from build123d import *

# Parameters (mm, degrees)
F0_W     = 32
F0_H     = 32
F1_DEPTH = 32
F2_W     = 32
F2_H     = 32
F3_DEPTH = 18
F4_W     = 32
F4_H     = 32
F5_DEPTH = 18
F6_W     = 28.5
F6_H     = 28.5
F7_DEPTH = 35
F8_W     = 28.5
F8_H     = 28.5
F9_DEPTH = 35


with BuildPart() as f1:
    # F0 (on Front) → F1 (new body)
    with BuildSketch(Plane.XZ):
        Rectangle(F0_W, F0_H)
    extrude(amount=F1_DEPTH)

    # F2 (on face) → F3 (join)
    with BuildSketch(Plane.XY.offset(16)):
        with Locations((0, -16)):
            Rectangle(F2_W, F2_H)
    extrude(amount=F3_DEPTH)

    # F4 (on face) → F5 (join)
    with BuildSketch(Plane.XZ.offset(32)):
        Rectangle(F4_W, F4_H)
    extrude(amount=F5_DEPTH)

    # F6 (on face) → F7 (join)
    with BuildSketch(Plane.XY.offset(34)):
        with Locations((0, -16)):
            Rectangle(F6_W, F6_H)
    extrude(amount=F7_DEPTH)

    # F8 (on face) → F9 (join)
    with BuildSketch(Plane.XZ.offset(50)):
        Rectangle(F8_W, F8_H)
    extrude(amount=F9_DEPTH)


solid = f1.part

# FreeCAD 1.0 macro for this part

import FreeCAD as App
import Part
import Sketcher

doc = App.newDocument("Part")
body = doc.addObject("PartDesign::Body", "Body")

# Sketch on XZ plane
sketch1 = doc.addObject("Sketcher::SketchObject", "Sketch")
body.addObject(sketch1)
sketch1.AttachmentSupport = (doc.XZ_Plane, [""])
sketch1.MapMode = "FlatFace"
sketch1.addGeometry(Part.LineSegment(App.Vector(-16, 16, 0), App.Vector(-16, -16, 0)), False)
sketch1.addGeometry(Part.LineSegment(App.Vector(-16, -16, 0), App.Vector(16, -16, 0)), False)
sketch1.addGeometry(Part.LineSegment(App.Vector(16, -16, 0), App.Vector(16, 16, 0)), False)
sketch1.addGeometry(Part.LineSegment(App.Vector(16, 16, 0), App.Vector(-16, 16, 0)), False)
sketch1.addConstraint(Sketcher.Constraint("Coincident", 0, 2, 1, 1))
sketch1.addConstraint(Sketcher.Constraint("Coincident", 1, 2, 2, 1))
sketch1.addConstraint(Sketcher.Constraint("Coincident", 2, 2, 3, 1))
sketch1.addConstraint(Sketcher.Constraint("Coincident", 3, 2, 0, 1))
sketch1.addConstraint(Sketcher.Constraint("Vertical", 0))
sketch1.addConstraint(Sketcher.Constraint("Horizontal", 1))
sketch1.addConstraint(Sketcher.Constraint("Vertical", 2))
sketch1.addConstraint(Sketcher.Constraint("Horizontal", 3))
sketch1.addConstraint(Sketcher.Constraint("Symmetric", 0, 2, 2, 2, -1, 1))
sketch1.addConstraint(Sketcher.Constraint("Equal", 3, 0))
sketch1.addConstraint(Sketcher.Constraint("DistanceX", 1, 1, 1, 2, 32.0))
pad1 = doc.addObject("PartDesign::Pad", "Pad")
body.addObject(pad1)
pad1.Profile = sketch1
pad1.Length = 32

# Sketch on XY plane
sketch2 = doc.addObject("Sketcher::SketchObject", "Sketch001")
body.addObject(sketch2)
sketch2.AttachmentSupport = (doc.XY_Plane, [""])
sketch2.MapMode = "FlatFace"
sketch2.AttachmentOffset = App.Placement(App.Vector(0, 0, 16), App.Rotation())
sketch2.addGeometry(Part.LineSegment(App.Vector(-16, 0, 0), App.Vector(-16, -32, 0)), False)
sketch2.addGeometry(Part.LineSegment(App.Vector(-16, -32, 0), App.Vector(16, -32, 0)), False)
sketch2.addGeometry(Part.LineSegment(App.Vector(16, -32, 0), App.Vector(16, 0, 0)), False)
sketch2.addGeometry(Part.LineSegment(App.Vector(16, 0, 0), App.Vector(-16, 0, 0)), False)
sketch2.addConstraint(Sketcher.Constraint("Coincident", 0, 2, 1, 1))
sketch2.addConstraint(Sketcher.Constraint("Coincident", 1, 2, 2, 1))
sketch2.addConstraint(Sketcher.Constraint("Coincident", 2, 2, 3, 1))
sketch2.addConstraint(Sketcher.Constraint("Coincident", 3, 2, 0, 1))
sketch2.addConstraint(Sketcher.Constraint("Vertical", 0))
sketch2.addConstraint(Sketcher.Constraint("Horizontal", 1))
sketch2.addConstraint(Sketcher.Constraint("Vertical", 2))
sketch2.addConstraint(Sketcher.Constraint("Horizontal", 3))
sketch2.addConstraint(Sketcher.Constraint("Symmetric", 2, 2, 3, 2, -1, 1))
sketch2.addConstraint(Sketcher.Constraint("Equal", 3, 0))
sketch2.addConstraint(Sketcher.Constraint("DistanceX", 1, 1, 1, 2, 32.0))
pad2 = doc.addObject("PartDesign::Pad", "Pad001")
body.addObject(pad2)
pad2.Profile = sketch2
pad2.Length = 18

# Sketch on XZ plane
sketch3 = doc.addObject("Sketcher::SketchObject", "Sketch002")
body.addObject(sketch3)
sketch3.AttachmentSupport = (doc.XZ_Plane, [""])
sketch3.MapMode = "FlatFace"
sketch3.AttachmentOffset = App.Placement(App.Vector(0, 0, 32), App.Rotation())
sketch3.addGeometry(Part.LineSegment(App.Vector(-16, 16, 0), App.Vector(-16, -16, 0)), False)
sketch3.addGeometry(Part.LineSegment(App.Vector(-16, -16, 0), App.Vector(16, -16, 0)), False)
sketch3.addGeometry(Part.LineSegment(App.Vector(16, -16, 0), App.Vector(16, 16, 0)), False)
sketch3.addGeometry(Part.LineSegment(App.Vector(16, 16, 0), App.Vector(-16, 16, 0)), False)
sketch3.addConstraint(Sketcher.Constraint("Coincident", 0, 2, 1, 1))
sketch3.addConstraint(Sketcher.Constraint("Coincident", 1, 2, 2, 1))
sketch3.addConstraint(Sketcher.Constraint("Coincident", 2, 2, 3, 1))
sketch3.addConstraint(Sketcher.Constraint("Coincident", 3, 2, 0, 1))
sketch3.addConstraint(Sketcher.Constraint("Vertical", 0))
sketch3.addConstraint(Sketcher.Constraint("Horizontal", 1))
sketch3.addConstraint(Sketcher.Constraint("Vertical", 2))
sketch3.addConstraint(Sketcher.Constraint("Horizontal", 3))
sketch3.addConstraint(Sketcher.Constraint("Symmetric", 0, 2, 2, 2, -1, 1))
sketch3.addConstraint(Sketcher.Constraint("Equal", 3, 0))
sketch3.addConstraint(Sketcher.Constraint("DistanceX", 1, 1, 1, 2, 32.0))
pad3 = doc.addObject("PartDesign::Pad", "Pad002")
body.addObject(pad3)
pad3.Profile = sketch3
pad3.Length = 18

# Sketch on XY plane
sketch4 = doc.addObject("Sketcher::SketchObject", "Sketch003")
body.addObject(sketch4)
sketch4.AttachmentSupport = (doc.XY_Plane, [""])
sketch4.MapMode = "FlatFace"
sketch4.AttachmentOffset = App.Placement(App.Vector(0, 0, 34), App.Rotation())
sketch4.addGeometry(Part.LineSegment(App.Vector(-14.25, -1.75, 0), App.Vector(-14.25, -30.25, 0)), False)
sketch4.addGeometry(Part.LineSegment(App.Vector(-14.25, -30.25, 0), App.Vector(14.25, -30.25, 0)), False)
sketch4.addGeometry(Part.LineSegment(App.Vector(14.25, -30.25, 0), App.Vector(14.25, -1.75, 0)), False)
sketch4.addGeometry(Part.LineSegment(App.Vector(14.25, -1.75, 0), App.Vector(-14.25, -1.75, 0)), False)
sketch4.addConstraint(Sketcher.Constraint("Coincident", 0, 2, 1, 1))
sketch4.addConstraint(Sketcher.Constraint("Coincident", 1, 2, 2, 1))
sketch4.addConstraint(Sketcher.Constraint("Coincident", 2, 2, 3, 1))
sketch4.addConstraint(Sketcher.Constraint("Coincident", 3, 2, 0, 1))
sketch4.addConstraint(Sketcher.Constraint("Vertical", 0))
sketch4.addConstraint(Sketcher.Constraint("Horizontal", 1))
sketch4.addConstraint(Sketcher.Constraint("Vertical", 2))
sketch4.addConstraint(Sketcher.Constraint("Horizontal", 3))
sketch4.addConstraint(Sketcher.Constraint("Equal", 3, 0))
sketch4.addConstraint(Sketcher.Constraint("DistanceX", 1, 1, 1, 2, 28.5))
sketch4.addConstraint(Sketcher.Constraint("DistanceX", 0, 2, -1, 1, 14.25))
sketch4.addConstraint(Sketcher.Constraint("DistanceY", 0, 2, -1, 1, 30.25))
pad4 = doc.addObject("PartDesign::Pad", "Pad003")
body.addObject(pad4)
pad4.Profile = sketch4
pad4.Length = 35

# Sketch on XZ plane
sketch5 = doc.addObject("Sketcher::SketchObject", "Sketch004")
body.addObject(sketch5)
sketch5.AttachmentSupport = (doc.XZ_Plane, [""])
sketch5.MapMode = "FlatFace"
sketch5.AttachmentOffset = App.Placement(App.Vector(0, 0, 50), App.Rotation())
sketch5.addGeometry(Part.LineSegment(App.Vector(-14.25, 14.25, 0), App.Vector(-14.25, -14.25, 0)), False)
sketch5.addGeometry(Part.LineSegment(App.Vector(-14.25, -14.25, 0), App.Vector(14.25, -14.25, 0)), False)
sketch5.addGeometry(Part.LineSegment(App.Vector(14.25, -14.25, 0), App.Vector(14.25, 14.25, 0)), False)
sketch5.addGeometry(Part.LineSegment(App.Vector(14.25, 14.25, 0), App.Vector(-14.25, 14.25, 0)), False)
sketch5.addConstraint(Sketcher.Constraint("Coincident", 0, 2, 1, 1))
sketch5.addConstraint(Sketcher.Constraint("Coincident", 1, 2, 2, 1))
sketch5.addConstraint(Sketcher.Constraint("Coincident", 2, 2, 3, 1))
sketch5.addConstraint(Sketcher.Constraint("Coincident", 3, 2, 0, 1))
sketch5.addConstraint(Sketcher.Constraint("Vertical", 0))
sketch5.addConstraint(Sketcher.Constraint("Horizontal", 1))
sketch5.addConstraint(Sketcher.Constraint("Vertical", 2))
sketch5.addConstraint(Sketcher.Constraint("Horizontal", 3))
sketch5.addConstraint(Sketcher.Constraint("Symmetric", 0, 2, 2, 2, -1, 1))
sketch5.addConstraint(Sketcher.Constraint("Equal", 3, 0))
sketch5.addConstraint(Sketcher.Constraint("DistanceX", 1, 1, 1, 2, 28.5))
pad5 = doc.addObject("PartDesign::Pad", "Pad004")
body.addObject(pad5)
pad5.Profile = sketch5
pad5.Length = 35

doc.recompute()
